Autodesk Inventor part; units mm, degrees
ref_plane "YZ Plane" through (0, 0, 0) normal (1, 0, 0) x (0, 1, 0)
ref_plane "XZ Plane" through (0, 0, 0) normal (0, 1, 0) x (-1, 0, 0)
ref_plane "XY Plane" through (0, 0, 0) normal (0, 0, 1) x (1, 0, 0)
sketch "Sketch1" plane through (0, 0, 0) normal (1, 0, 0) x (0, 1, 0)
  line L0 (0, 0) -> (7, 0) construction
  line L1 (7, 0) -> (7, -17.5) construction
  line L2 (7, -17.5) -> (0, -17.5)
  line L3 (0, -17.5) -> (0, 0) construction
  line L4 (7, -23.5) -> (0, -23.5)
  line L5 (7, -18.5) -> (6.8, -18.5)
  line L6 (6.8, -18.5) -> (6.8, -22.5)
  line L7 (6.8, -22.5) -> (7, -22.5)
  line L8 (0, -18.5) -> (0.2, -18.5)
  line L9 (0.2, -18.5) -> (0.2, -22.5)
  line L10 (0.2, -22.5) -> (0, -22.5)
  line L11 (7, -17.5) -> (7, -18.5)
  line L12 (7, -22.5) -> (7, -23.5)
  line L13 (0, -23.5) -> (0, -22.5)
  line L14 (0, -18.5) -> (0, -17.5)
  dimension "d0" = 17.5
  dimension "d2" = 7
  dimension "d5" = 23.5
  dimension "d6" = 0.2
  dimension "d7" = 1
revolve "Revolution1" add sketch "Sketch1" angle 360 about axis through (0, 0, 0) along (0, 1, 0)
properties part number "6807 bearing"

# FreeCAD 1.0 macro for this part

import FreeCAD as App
import Part
import Sketcher

V = App.Vector


def add_polygon(sketch, points):
    """Adds a closed chain of lines whose ends are joined by coincident constraints."""
    first, n = sketch.GeometryCount, len(points)
    for a, b in zip(points, points[1:] + points[:1]):
        sketch.addGeometry(Part.LineSegment(App.Vector(*a, 0), App.Vector(*b, 0)), False)
    for i in range(n):
        sketch.addConstraint(Sketcher.Constraint("Coincident", first + i, 2, first + (i + 1) % n, 1))

doc = App.newDocument("Part")
body = doc.addObject("PartDesign::Body", "Body")

sketch1 = doc.addObject("Sketcher::SketchObject", "Sketch")
body.addObject(sketch1)
sketch1.AttachmentSupport = (doc.YZ_Plane, [""])
sketch1.MapMode = "FlatFace"
add_polygon(sketch1, [(7, -18.5), (7, -17.5), (0, -17.5), (0, -18.5), (0.2, -18.5), (0.2, -22.5), (0, -22.5), (0, -23.5), (7, -23.5), (7, -22.5), (6.8, -22.5), (6.8, -18.5)])
sketch1.addConstraint([
    Sketcher.Constraint("Vertical", 0),
    Sketcher.Constraint("Horizontal", 1),
    Sketcher.Constraint("Vertical", 2),
    Sketcher.Constraint("Horizontal", 3),
    Sketcher.Constraint("Vertical", 4),
    Sketcher.Constraint("Horizontal", 5),
    Sketcher.Constraint("Vertical", 6),
    Sketcher.Constraint("Horizontal", 7),
    Sketcher.Constraint("Vertical", 8),
    Sketcher.Constraint("Horizontal", 9),
    Sketcher.Constraint("Vertical", 10),
    Sketcher.Constraint("Horizontal", 11),
    Sketcher.Constraint("PointOnObject", 1, 2, -2),
    Sketcher.Constraint("PointOnObject", 5, 2, -2),
    Sketcher.Constraint("Horizontal", 5, 2, 8, 2),
    Sketcher.Constraint("Horizontal", 3, 2, 10, 2),
    Sketcher.Constraint("Vertical", 0, 2, 7, 2),
    Sketcher.Constraint("Equal", 5, 9),
    Sketcher.Constraint("Equal", 2, 6),
    Sketcher.Constraint("DistanceX", 1, 2, 1, 1, 7.0),
    Sketcher.Constraint("DistanceY", 0, 1, 0, 2, 1.0),
    Sketcher.Constraint("DistanceX", 3, 1, 3, 2, 0.2),
    Sketcher.Constraint("DistanceY", 0, 2, -1, 1, 17.5),
    Sketcher.Constraint("DistanceY", 6, 2, -1, 1, 23.5),
])
revolution = doc.addObject("PartDesign::Revolution", "Revolution")
body.addObject(revolution)
revolution.Profile = sketch1
revolution.ReferenceAxis = (sketch1, ["H_Axis"])
revolution.Angle = 360

doc.recompute()
